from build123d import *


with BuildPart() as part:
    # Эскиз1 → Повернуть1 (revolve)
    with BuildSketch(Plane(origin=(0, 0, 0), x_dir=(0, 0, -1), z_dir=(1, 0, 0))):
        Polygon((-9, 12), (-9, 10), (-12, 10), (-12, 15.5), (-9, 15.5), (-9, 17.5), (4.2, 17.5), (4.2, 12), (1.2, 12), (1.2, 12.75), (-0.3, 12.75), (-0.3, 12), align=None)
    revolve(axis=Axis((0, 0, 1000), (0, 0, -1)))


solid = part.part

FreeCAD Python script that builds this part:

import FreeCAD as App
import Part
import Sketcher
from FreeCAD import Vector

doc = App.newDocument("Part")
body = doc.addObject("PartDesign::Body", "Body")

# Sketch on YZ plane
sketch1 = body.newObject("Sketcher::SketchObject", "Sketch")
sketch1.AttachmentSupport = (doc.getObject("YZ_Plane"), [""])
sketch1.MapMode = "FlatFace"
sketch1.addGeometry([
    Part.LineSegment(Vector(10, 9, 0), Vector(12, 9, 0)),  # 0
    Part.LineSegment(Vector(12, 9, 0), Vector(12, 0.3, 0)),  # 1
    Part.LineSegment(Vector(12, 0.3, 0), Vector(12.8, 0.3, 0)),  # 2
    Part.LineSegment(Vector(12.8, 0.3, 0), Vector(12.8, -1.2, 0)),  # 3
    Part.LineSegment(Vector(12.8, -1.2, 0), Vector(12, -1.2, 0)),  # 4
    Part.LineSegment(Vector(12, -1.2, 0), Vector(12, -4.2, 0)),  # 5
    Part.LineSegment(Vector(12, -4.2, 0), Vector(17.5, -4.2, 0)),  # 6
    Part.LineSegment(Vector(17.5, -4.2, 0), Vector(17.5, 9, 0)),  # 7
    Part.LineSegment(Vector(17.5, 9, 0), Vector(15.5, 9, 0)),  # 8
    Part.LineSegment(Vector(15.5, 9, 0), Vector(15.5, 12, 0)),  # 9
    Part.LineSegment(Vector(15.5, 12, 0), Vector(10, 12, 0)),  # 10
    Part.LineSegment(Vector(10, 12, 0), Vector(10, 9, 0)),  # 11
], False)
sketch1.addConstraint([
    Sketcher.Constraint("Coincident", 0, 2, 1, 1),
    Sketcher.Constraint("Coincident", 1, 2, 2, 1),
    Sketcher.Constraint("Coincident", 2, 2, 3, 1),
    Sketcher.Constraint("Coincident", 3, 2, 4, 1),
    Sketcher.Constraint("Coincident", 4, 2, 5, 1),
    Sketcher.Constraint("Coincident", 5, 2, 6, 1),
    Sketcher.Constraint("Coincident", 6, 2, 7, 1),
    Sketcher.Constraint("Coincident", 7, 2, 8, 1),
    Sketcher.Constraint("Coincident", 8, 2, 9, 1),
    Sketcher.Constraint("Coincident", 9, 2, 10, 1),
    Sketcher.Constraint("Coincident", 10, 2, 11, 1),
    Sketcher.Constraint("Coincident", 11, 2, 0, 1),
    Sketcher.Constraint("Horizontal", 0),
    Sketcher.Constraint("Vertical", 1),
    Sketcher.Constraint("Horizontal", 2),
    Sketcher.Constraint("Vertical", 3),
    Sketcher.Constraint("Horizontal", 4),
    Sketcher.Constraint("Vertical", 5),
    Sketcher.Constraint("Horizontal", 6),
    Sketcher.Constraint("Vertical", 7),
    Sketcher.Constraint("Horizontal", 8),
    Sketcher.Constraint("Vertical", 9),
    Sketcher.Constraint("Horizontal", 10),
    Sketcher.Constraint("Vertical", 11),
    Sketcher.Constraint("Horizontal", 0, 2, 7, 2),
    Sketcher.Constraint("Vertical", 1, 2, 4, 2),
    Sketcher.Constraint("Equal", 0, 8),
    Sketcher.Constraint("Equal", 5, 9),
    Sketcher.Constraint("DistanceX", 0, 1, 0, 2, 2.0),
    Sketcher.Constraint("DistanceY", 5, 2, 5, 1, 3.0),
    Sketcher.Constraint("DistanceX", 6, 1, 6, 2, 5.5),
    Sketcher.Constraint("DistanceY", 1, 2, 1, 1, 8.7),
    Sketcher.Constraint("DistanceY", 3, 2, 3, 1, 1.5),
    Sketcher.Constraint("DistanceX", -1, 1, 0, 2, 12.0),
    Sketcher.Constraint("DistanceY", -1, 1, 0, 2, 9.0),
    Sketcher.Constraint("DistanceX", 2, 1, 2, 2, 0.75),
])
revolution = body.newObject("PartDesign::Revolution", "Revolution")
revolution.Profile = sketch1
revolution.ReferenceAxis = (sketch1, ["V_Axis"])
revolution.Angle = 360

doc.recompute()
